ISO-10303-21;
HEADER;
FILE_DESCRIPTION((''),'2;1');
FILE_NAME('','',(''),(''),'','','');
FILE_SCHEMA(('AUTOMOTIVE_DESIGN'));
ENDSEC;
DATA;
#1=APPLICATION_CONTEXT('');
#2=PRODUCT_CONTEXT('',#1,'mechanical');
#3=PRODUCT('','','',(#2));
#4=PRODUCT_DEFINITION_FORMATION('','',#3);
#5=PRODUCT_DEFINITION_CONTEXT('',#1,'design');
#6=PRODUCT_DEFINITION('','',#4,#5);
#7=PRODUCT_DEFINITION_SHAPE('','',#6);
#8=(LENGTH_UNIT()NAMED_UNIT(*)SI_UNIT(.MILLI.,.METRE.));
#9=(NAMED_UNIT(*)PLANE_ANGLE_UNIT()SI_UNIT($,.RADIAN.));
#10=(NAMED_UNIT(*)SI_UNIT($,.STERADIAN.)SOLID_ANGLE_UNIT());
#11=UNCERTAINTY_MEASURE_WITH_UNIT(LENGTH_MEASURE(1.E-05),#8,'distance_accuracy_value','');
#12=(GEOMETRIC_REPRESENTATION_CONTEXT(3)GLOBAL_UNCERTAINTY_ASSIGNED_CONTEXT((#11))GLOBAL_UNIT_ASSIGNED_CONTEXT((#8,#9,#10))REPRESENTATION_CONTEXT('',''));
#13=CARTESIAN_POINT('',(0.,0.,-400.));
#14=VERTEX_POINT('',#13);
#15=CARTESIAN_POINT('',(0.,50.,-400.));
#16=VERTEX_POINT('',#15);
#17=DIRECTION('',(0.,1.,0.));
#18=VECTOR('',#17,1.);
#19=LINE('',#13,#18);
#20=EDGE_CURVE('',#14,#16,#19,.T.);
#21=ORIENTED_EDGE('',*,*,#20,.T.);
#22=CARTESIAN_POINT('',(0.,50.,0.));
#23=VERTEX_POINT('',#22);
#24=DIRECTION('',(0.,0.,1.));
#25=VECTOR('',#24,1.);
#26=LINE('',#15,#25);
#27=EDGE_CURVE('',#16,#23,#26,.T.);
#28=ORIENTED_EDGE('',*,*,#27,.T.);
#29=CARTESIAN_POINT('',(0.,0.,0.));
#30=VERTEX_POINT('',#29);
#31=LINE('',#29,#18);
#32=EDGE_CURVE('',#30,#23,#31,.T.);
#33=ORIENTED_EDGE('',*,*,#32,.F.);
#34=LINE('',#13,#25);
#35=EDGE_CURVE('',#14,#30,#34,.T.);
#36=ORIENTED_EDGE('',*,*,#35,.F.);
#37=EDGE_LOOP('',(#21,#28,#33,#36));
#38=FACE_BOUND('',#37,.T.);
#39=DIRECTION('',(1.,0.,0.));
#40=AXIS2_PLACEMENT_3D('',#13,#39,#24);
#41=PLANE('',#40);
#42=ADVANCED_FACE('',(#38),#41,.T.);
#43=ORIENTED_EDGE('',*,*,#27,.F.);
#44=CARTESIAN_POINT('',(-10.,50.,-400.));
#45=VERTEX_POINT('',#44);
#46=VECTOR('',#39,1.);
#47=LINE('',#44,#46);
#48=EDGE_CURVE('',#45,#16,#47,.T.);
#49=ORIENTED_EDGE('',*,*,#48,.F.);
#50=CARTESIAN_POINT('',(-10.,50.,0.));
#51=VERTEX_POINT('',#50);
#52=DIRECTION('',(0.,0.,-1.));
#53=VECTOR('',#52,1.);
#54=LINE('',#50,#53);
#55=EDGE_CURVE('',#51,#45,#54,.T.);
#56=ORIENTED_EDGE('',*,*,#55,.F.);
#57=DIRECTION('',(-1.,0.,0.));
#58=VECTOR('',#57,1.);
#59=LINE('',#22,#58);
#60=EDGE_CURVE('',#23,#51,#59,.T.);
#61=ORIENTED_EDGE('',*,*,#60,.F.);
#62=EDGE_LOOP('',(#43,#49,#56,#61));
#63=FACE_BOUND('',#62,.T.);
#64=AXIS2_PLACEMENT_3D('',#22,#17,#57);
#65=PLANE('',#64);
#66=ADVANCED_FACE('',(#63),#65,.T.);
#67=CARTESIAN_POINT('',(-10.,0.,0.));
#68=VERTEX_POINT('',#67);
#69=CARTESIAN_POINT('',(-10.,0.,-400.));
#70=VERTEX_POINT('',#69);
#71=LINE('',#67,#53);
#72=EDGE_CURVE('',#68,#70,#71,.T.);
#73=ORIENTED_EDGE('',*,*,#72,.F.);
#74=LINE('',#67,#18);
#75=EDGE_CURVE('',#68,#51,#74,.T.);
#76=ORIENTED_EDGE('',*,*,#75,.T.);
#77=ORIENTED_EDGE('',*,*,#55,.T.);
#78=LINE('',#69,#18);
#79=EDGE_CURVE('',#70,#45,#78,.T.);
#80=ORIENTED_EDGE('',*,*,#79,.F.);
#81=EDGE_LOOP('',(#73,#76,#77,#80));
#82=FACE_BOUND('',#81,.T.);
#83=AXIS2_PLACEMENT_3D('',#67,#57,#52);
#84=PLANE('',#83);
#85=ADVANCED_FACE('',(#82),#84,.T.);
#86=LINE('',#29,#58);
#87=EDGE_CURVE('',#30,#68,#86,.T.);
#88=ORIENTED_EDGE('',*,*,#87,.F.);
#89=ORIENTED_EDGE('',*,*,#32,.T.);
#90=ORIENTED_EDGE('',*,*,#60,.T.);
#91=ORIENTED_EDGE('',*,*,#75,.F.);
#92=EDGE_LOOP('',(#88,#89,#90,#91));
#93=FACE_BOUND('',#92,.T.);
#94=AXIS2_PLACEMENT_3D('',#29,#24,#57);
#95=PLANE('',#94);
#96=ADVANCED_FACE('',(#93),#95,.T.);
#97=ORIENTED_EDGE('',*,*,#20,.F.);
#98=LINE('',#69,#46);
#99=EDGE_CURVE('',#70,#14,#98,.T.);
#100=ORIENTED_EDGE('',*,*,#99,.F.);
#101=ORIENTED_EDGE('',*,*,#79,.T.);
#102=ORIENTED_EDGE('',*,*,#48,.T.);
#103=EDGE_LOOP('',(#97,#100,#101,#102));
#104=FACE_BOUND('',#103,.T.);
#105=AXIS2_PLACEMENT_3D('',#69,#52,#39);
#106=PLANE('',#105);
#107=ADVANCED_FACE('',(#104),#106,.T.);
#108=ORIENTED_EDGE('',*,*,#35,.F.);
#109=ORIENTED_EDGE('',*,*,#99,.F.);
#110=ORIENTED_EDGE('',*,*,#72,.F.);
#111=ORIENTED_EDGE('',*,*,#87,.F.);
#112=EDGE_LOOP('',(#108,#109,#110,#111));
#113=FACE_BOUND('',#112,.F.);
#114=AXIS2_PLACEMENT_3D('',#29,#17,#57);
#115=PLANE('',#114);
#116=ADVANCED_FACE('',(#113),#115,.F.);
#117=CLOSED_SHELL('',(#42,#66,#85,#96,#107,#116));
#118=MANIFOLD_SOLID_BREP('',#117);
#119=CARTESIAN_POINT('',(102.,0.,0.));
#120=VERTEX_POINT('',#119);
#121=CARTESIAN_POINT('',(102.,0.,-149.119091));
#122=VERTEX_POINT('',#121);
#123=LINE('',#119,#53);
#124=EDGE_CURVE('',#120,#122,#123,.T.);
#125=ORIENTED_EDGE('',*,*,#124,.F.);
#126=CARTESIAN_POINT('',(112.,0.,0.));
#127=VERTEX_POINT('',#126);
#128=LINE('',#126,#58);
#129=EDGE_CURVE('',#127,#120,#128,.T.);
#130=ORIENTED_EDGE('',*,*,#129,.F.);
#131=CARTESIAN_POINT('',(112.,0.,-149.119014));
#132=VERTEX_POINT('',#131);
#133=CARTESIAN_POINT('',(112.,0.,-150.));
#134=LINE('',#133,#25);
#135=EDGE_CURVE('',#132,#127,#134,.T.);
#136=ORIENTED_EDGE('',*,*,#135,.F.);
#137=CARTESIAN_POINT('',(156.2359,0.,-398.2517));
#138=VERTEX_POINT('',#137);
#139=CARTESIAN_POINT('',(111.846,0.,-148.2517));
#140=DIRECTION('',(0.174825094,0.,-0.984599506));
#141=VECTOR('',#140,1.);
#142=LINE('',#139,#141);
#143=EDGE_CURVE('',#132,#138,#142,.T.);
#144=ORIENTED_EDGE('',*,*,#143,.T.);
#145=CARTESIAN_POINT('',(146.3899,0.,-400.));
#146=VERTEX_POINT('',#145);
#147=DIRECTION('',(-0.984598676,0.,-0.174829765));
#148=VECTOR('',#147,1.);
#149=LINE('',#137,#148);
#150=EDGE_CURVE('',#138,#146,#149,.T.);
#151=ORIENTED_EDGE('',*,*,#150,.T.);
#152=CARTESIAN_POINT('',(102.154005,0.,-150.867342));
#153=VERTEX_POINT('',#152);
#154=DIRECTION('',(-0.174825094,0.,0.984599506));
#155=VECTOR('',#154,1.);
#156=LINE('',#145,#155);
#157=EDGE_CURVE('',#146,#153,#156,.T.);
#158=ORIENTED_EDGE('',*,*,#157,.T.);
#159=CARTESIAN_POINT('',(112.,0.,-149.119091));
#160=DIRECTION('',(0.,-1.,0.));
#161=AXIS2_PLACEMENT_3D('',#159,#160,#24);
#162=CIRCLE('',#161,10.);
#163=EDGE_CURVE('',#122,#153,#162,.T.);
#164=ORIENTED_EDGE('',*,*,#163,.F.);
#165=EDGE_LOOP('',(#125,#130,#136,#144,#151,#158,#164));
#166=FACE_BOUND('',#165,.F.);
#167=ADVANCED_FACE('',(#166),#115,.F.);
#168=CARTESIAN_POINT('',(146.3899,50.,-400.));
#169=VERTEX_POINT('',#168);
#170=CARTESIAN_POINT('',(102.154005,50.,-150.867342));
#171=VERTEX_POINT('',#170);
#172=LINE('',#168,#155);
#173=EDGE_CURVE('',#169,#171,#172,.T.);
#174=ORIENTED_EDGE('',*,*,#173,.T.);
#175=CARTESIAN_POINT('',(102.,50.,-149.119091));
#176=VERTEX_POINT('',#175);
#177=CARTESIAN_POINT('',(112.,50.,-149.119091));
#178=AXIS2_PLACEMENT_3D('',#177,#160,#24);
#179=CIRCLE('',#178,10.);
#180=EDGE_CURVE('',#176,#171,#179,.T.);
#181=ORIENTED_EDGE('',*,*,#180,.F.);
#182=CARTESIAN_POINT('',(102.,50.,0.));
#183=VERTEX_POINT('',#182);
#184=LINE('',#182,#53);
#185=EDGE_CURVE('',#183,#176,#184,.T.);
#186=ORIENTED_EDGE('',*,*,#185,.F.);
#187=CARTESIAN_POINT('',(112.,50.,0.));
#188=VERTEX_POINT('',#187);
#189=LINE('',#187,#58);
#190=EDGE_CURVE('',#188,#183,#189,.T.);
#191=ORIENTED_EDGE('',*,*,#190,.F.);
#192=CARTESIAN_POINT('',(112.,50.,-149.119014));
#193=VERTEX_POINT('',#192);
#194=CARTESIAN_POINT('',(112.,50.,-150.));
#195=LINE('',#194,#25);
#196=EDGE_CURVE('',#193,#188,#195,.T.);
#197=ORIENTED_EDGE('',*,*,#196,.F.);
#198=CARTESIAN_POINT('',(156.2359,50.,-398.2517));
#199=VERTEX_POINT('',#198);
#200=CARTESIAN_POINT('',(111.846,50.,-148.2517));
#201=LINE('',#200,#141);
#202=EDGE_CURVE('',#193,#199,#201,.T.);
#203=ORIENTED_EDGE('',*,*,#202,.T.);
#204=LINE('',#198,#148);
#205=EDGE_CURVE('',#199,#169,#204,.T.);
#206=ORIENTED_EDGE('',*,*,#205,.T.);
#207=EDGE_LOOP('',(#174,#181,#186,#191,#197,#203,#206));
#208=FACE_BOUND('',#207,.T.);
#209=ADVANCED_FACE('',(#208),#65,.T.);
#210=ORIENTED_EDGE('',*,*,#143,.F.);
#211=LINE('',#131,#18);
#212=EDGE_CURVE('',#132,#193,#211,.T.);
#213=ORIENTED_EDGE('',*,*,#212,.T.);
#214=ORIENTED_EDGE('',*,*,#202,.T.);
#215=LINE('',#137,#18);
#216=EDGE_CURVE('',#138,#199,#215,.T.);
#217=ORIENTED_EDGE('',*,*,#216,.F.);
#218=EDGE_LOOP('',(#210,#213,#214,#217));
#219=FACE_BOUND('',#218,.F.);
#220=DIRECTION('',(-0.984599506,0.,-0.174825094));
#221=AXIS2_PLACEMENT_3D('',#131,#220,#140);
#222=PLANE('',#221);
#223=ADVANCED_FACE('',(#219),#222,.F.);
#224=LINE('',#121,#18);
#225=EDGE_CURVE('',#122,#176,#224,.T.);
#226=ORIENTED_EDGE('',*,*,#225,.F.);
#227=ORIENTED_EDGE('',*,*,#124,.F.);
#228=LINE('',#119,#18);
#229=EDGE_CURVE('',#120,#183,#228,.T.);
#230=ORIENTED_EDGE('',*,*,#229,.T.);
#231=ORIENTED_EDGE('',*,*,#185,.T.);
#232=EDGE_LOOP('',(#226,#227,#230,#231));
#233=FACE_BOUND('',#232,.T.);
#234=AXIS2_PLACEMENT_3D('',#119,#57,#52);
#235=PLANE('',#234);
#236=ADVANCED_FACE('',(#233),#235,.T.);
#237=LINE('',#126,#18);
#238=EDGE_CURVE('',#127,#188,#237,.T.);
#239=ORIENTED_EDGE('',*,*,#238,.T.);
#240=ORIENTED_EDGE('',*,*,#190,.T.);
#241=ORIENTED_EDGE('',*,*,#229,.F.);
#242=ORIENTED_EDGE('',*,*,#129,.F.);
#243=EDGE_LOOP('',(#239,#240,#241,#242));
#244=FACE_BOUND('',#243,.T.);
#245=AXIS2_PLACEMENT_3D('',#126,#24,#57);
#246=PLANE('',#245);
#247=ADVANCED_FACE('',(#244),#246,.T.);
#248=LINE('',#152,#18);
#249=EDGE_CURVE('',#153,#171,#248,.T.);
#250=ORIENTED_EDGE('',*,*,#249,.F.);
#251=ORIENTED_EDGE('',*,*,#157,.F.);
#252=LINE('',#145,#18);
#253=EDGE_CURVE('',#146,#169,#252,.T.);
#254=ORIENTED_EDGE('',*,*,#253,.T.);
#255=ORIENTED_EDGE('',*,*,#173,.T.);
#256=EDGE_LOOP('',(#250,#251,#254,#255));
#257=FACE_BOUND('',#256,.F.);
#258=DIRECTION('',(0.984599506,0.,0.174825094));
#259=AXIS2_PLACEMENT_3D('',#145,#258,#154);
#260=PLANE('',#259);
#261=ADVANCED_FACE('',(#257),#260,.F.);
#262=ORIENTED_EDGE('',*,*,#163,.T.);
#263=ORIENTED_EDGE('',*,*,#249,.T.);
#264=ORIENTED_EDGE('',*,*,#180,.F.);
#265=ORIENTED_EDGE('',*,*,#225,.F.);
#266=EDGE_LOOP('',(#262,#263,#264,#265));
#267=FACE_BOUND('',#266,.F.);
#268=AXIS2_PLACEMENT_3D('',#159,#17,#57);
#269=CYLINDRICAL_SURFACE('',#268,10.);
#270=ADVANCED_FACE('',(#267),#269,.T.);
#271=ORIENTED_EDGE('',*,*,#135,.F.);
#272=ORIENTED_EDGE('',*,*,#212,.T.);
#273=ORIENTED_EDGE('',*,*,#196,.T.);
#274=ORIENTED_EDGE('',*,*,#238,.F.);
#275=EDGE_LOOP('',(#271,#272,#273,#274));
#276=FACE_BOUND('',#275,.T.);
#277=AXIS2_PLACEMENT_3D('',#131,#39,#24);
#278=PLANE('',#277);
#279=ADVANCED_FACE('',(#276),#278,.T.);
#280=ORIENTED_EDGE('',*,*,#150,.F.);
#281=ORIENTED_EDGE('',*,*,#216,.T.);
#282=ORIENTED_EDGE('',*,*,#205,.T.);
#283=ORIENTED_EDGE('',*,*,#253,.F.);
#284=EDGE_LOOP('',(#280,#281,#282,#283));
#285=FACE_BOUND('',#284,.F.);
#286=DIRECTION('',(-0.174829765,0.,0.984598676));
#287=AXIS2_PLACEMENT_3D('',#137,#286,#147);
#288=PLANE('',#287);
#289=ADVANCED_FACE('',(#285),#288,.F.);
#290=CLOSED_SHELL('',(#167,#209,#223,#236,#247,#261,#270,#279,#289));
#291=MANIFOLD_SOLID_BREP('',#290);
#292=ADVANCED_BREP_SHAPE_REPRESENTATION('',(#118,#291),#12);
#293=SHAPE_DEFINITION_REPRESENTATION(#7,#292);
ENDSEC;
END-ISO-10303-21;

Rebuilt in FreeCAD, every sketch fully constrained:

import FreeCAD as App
import Part
import Sketcher

V = App.Vector


def edges_at(feature, points):
    """Names of the edges that pass closest to the given points."""
    edges = feature.Shape.Edges
    near = lambda p: min(range(len(edges)), key=lambda i: edges[i].distToShape(Part.Vertex(*p))[0])
    return sorted({f"Edge{near(p) + 1}" for p in points})


def add_polygon(sketch, points):
    """Adds a closed chain of lines whose ends are joined by coincident constraints."""
    first, n = sketch.GeometryCount, len(points)
    for a, b in zip(points, points[1:] + points[:1]):
        sketch.addGeometry(Part.LineSegment(App.Vector(*a, 0), App.Vector(*b, 0)), False)
    for i in range(n):
        sketch.addConstraint(Sketcher.Constraint("Coincident", first + i, 2, first + (i + 1) % n, 1))

doc = App.newDocument("Part")
body = doc.addObject("PartDesign::Body", "Body")
body.AllowCompound = True

sketch1 = body.newObject("Sketcher::SketchObject", "Sketch")
sketch1.AttachmentSupport = (doc.getObject("XZ_Plane"), [""])
sketch1.MapMode = "FlatFace"
add_polygon(sketch1, [(-10, 0), (0, 0), (0, -400), (-10, -400)])
add_polygon(sketch1, [(102, 0), (112, 0), (112, -149.119014), (156.2359, -398.2517), (146.3899, -400), (102, -150)])
sketch1.addConstraint(Sketcher.Constraint("Horizontal", 0))
sketch1.addConstraint(Sketcher.Constraint("Vertical", 1))
sketch1.addConstraint(Sketcher.Constraint("Horizontal", 2))
sketch1.addConstraint(Sketcher.Constraint("Vertical", 3))
sketch1.addConstraint(Sketcher.Constraint("Horizontal", 4))
sketch1.addConstraint(Sketcher.Constraint("Vertical", 5))
sketch1.addConstraint(Sketcher.Constraint("Vertical", 9))
sketch1.addConstraint(Sketcher.Constraint("Coincident", 0, 2, -1, 1))
sketch1.addConstraint(Sketcher.Constraint("PointOnObject", 4, 2, -1))
sketch1.addConstraint(Sketcher.Constraint("DistanceX", 0, 1, 0, 2, 10.0))
sketch1.addConstraint(Sketcher.Constraint("DistanceX", 4, 1, 4, 2, 10.0))
sketch1.addConstraint(Sketcher.Constraint("DistanceY", 1, 2, 1, 1, 400.0))
sketch1.addConstraint(Sketcher.Constraint("DistanceY", 9, 1, 9, 2, 150.0))
sketch1.addConstraint(Sketcher.Constraint("Distance", 7, 10.0))
sketch1.addConstraint(Sketcher.Constraint("DistanceY", 7, 2, -1, 1, 400.0))
sketch1.addConstraint(Sketcher.Constraint("DistanceX", -1, 1, 8, 2, 102.0))
sketch1.addConstraint(Sketcher.Constraint("DistanceY", 5, 2, 5, 1, 149.119))
sketch1.addConstraint(Sketcher.Constraint("DistanceX", -1, 1, 7, 2, 146.39))
sketch1.addConstraint(Sketcher.Constraint("DistanceX", -1, 1, 6, 2, 156.236))
pad1 = body.newObject("PartDesign::Pad", "Pad")
pad1.Profile = sketch1
pad1.Length = 50
pad1.Reversed = True
doc.recompute()

fillet = body.newObject("PartDesign::Fillet", "Fillet")
fillet.Base = (pad1, edges_at(pad1, [(102, 25, -150)]))
fillet.Radius = 10

doc.recompute()
